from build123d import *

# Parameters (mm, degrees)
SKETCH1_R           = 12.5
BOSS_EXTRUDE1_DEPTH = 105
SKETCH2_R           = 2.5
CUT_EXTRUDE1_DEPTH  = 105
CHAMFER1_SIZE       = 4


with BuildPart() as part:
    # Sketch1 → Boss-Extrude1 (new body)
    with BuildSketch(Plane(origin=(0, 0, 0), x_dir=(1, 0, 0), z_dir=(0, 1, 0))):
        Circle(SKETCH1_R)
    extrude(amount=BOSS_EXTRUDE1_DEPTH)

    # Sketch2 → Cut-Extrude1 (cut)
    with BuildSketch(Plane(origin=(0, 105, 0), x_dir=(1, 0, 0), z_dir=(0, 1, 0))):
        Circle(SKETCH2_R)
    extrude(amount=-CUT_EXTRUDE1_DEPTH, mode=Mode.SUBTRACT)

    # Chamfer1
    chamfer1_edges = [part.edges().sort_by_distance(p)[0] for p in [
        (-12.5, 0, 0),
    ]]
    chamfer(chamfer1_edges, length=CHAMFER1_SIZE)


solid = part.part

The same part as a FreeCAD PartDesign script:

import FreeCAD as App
import Part
import Sketcher
from FreeCAD import Vector
Q = App.Units.Quantity


def edges_at(feature, points):
    """Names of the edges that pass closest to the given points."""
    edges = feature.Shape.Edges
    near = lambda p: min(range(len(edges)), key=lambda i: edges[i].distToShape(Part.Vertex(*p))[0])
    return sorted({f"Edge{near(p) + 1}" for p in points})

doc = App.newDocument("Part")
body = doc.addObject("PartDesign::Body", "Body")

sketch1 = body.newObject("Sketcher::SketchObject", "Sketch")
sketch1.AttachmentSupport = (doc.getObject("XZ_Plane"), [""])
sketch1.MapMode = "FlatFace"
sketch1.addGeometry(Part.Circle(Vector(0, 0, 0), Vector(0, 0, 1), 12), False)
sketch1.addConstraint([
    Sketcher.Constraint("Coincident", 0, 3, -1, 1),
    Sketcher.Constraint("Diameter", 0, Q("25 mm")),
])
pad1 = body.newObject("PartDesign::Pad", "Pad")
pad1.Profile = sketch1
pad1.Length = 105
pad1.Reversed = True

sketch2 = body.newObject("Sketcher::SketchObject", "Sketch001")
sketch2.AttachmentSupport = (doc.getObject("XZ_Plane"), [""])
sketch2.MapMode = "FlatFace"
sketch2.AttachmentOffset = App.Placement(Vector(0, 0, -105), App.Rotation())
sketch2.addGeometry(Part.Circle(Vector(0, 0, 0), Vector(0, 0, 1), 2.5), False)
sketch2.addConstraint([
    Sketcher.Constraint("Coincident", 0, 3, -1, 1),
    Sketcher.Constraint("Diameter", 0, Q("5 mm")),
])
pocket1 = body.newObject("PartDesign::Pocket", "Pocket")
pocket1.Profile = sketch2
pocket1.Length = 105
pocket1.Reversed = True
doc.recompute()

chamfer = body.newObject("PartDesign::Chamfer", "Chamfer")
chamfer.Base = (pocket1, edges_at(pocket1, [(-12.5, 0, 0)]))
chamfer.Size = 4

doc.recompute()
